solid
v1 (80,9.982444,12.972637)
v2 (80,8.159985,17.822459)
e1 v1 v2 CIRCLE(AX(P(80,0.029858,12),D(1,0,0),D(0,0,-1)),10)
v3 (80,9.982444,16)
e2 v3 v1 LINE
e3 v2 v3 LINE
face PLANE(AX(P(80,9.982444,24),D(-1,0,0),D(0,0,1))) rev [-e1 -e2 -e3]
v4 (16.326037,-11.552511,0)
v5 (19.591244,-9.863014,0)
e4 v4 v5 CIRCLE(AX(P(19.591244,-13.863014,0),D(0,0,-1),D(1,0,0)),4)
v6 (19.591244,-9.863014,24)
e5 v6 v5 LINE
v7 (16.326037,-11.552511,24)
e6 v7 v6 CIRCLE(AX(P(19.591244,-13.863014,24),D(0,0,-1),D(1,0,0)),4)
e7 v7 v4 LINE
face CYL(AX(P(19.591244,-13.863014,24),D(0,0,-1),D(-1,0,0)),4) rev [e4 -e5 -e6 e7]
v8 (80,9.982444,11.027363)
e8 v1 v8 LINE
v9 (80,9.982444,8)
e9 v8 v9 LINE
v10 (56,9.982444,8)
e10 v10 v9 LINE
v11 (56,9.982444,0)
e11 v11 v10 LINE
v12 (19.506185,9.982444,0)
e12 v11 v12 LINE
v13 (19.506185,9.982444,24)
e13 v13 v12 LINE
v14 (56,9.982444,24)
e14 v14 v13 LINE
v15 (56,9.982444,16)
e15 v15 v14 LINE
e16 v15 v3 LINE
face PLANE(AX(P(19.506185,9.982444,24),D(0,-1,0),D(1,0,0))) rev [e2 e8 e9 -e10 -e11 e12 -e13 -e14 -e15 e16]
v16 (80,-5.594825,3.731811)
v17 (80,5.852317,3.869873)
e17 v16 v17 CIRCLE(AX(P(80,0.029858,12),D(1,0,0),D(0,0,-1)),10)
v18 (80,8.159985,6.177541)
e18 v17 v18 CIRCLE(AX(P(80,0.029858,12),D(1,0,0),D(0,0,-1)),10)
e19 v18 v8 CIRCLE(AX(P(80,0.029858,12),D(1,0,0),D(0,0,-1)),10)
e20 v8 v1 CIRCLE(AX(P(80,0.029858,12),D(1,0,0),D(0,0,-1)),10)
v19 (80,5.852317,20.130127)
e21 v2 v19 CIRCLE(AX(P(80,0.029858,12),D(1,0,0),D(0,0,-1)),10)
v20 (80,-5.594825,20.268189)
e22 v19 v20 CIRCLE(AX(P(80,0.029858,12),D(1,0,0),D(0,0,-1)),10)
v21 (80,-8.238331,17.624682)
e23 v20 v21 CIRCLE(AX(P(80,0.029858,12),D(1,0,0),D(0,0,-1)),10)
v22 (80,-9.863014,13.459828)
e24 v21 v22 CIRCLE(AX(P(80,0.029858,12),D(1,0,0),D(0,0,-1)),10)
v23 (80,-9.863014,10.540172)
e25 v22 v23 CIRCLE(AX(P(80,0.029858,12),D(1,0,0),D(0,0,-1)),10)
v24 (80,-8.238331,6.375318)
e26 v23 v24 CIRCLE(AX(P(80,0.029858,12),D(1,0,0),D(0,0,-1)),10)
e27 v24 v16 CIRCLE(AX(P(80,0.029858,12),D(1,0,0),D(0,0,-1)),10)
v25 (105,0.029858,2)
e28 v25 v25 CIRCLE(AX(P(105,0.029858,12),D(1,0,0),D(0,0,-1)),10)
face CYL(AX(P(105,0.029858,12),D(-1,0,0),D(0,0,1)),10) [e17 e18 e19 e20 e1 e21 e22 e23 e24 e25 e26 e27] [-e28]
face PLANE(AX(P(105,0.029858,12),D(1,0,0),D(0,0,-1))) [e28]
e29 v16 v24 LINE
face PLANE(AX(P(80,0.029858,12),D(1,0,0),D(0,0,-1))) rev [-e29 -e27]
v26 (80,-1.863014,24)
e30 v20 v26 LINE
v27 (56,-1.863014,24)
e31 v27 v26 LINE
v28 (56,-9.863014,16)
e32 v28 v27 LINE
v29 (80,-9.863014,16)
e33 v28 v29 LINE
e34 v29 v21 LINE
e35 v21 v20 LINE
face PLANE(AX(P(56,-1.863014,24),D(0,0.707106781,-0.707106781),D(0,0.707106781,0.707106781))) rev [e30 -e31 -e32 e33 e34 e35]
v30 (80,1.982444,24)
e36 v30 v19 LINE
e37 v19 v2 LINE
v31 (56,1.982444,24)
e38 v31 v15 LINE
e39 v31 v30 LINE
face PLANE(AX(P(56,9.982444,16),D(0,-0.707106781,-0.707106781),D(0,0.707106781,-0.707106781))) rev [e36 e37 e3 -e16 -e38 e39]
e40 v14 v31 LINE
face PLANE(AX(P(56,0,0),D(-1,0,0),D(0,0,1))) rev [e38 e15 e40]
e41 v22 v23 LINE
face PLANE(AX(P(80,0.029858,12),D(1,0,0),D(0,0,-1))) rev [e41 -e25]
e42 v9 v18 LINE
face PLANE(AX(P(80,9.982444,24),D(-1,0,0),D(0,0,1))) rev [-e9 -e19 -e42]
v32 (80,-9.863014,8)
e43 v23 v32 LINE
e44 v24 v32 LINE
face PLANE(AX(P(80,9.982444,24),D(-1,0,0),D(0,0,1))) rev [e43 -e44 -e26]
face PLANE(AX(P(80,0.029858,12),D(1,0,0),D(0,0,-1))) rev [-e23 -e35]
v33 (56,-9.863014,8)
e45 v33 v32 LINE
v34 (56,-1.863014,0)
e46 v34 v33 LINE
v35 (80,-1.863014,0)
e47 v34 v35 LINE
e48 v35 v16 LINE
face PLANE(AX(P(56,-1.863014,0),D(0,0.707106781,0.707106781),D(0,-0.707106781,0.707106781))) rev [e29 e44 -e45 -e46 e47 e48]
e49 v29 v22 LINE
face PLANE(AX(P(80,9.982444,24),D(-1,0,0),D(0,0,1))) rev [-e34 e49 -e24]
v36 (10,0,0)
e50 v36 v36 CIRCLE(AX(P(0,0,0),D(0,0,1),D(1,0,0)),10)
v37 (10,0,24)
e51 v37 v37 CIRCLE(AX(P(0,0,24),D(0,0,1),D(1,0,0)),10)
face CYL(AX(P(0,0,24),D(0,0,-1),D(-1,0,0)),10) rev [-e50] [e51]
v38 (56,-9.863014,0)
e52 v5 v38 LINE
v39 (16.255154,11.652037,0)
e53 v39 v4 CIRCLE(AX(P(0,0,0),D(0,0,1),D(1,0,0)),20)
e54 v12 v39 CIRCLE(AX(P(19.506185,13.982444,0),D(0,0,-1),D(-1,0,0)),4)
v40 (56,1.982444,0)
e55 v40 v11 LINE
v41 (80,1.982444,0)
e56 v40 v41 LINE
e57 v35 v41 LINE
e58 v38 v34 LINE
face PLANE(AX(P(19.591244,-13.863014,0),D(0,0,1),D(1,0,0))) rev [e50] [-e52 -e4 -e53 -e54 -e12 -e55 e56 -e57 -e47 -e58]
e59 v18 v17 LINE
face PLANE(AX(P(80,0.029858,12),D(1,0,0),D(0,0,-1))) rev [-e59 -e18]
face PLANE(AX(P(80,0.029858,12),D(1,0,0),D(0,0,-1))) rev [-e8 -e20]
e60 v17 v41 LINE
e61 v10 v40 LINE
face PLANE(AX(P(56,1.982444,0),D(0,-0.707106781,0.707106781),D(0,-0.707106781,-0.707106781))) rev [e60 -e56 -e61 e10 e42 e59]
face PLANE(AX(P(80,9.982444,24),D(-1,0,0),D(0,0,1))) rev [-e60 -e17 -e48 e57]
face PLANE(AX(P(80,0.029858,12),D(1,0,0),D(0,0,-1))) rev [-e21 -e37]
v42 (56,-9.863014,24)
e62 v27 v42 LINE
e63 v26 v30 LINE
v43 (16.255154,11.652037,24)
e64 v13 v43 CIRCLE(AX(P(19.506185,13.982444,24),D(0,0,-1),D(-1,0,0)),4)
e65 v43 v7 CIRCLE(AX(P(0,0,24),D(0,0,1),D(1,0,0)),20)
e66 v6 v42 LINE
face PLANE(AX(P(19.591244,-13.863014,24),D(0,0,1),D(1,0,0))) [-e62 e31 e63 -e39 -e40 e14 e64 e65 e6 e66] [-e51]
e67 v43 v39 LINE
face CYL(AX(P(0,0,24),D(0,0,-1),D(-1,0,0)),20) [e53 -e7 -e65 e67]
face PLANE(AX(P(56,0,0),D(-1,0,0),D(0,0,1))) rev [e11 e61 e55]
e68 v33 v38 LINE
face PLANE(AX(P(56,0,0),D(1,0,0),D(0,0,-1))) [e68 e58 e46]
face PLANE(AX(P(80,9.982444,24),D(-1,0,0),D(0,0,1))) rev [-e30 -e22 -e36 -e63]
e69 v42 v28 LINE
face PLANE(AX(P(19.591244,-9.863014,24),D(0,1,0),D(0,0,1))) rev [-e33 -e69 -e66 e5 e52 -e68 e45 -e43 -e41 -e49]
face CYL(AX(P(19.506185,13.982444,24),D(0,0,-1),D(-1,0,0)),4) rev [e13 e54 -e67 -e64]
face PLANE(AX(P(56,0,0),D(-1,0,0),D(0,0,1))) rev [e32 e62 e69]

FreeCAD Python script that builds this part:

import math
import FreeCAD as App
import Part
import Sketcher
from FreeCAD import Vector
Q = App.Units.Quantity

doc = App.newDocument("Part")
params = doc.addObject("Spreadsheet::Sheet", "Params")
for row, (alias, value) in enumerate([
    ("sketch1_diameter", "20 mm"),
    ("sketch1_radius", "4 mm"),
    ("sketch1_radius2", "20 mm"),
    ("pad1_length", "24 mm"),
    ("sketch2_width", "8 mm"),
    ("pocket1_length", "24 mm"),
    ("sketch3_diameter", "20 mm"),
    ("pad2_length", "25 mm"),
], start=1):
    params.set(f"A{row}", alias)
    params.set(f"B{row}", "=" + value)
    params.setAlias(f"B{row}", alias)

body = doc.addObject("PartDesign::Body", "Body")

# Sketch on XY plane
sketch1 = doc.addObject("Sketcher::SketchObject", "Sketch")
body.addObject(sketch1)
sketch1.AttachmentSupport = (doc.XY_Plane, [""])
sketch1.MapMode = "FlatFace"
sketch1.addGeometry(Part.LineSegment(Vector(80, 10, 0), Vector(19.5, 10, 0)), False)
sketch1.addGeometry(Part.ArcOfCircle(Part.Circle(Vector(19.5, 14, 0), Vector(0, 0, 1), 4), math.radians(-144), math.radians(-90)), False)
sketch1.addGeometry(Part.ArcOfCircle(Part.Circle(Vector(0, 0, 0), Vector(0, 0, 1), 20), math.radians(36), math.radians(325)), False)
sketch1.addGeometry(Part.ArcOfCircle(Part.Circle(Vector(19.6, -13.9, 0), Vector(0, 0, 1), 4), math.radians(90), math.radians(145)), False)
sketch1.addGeometry(Part.LineSegment(Vector(19.6, -9.9, 0), Vector(80, -9.9, 0)), False)
sketch1.addGeometry(Part.LineSegment(Vector(80, -9.9, 0), Vector(80, 10, 0)), False)
sketch1.addGeometry(Part.Circle(Vector(0, 0, 0), Vector(0, 0, 1), 10), False)
sketch1.addConstraint(Sketcher.Constraint("Tangent", 0, 2, 1, 2))
sketch1.addConstraint(Sketcher.Constraint("Tangent", 1, 1, 2, 1))
sketch1.addConstraint(Sketcher.Constraint("Tangent", 2, 2, 3, 2))
sketch1.addConstraint(Sketcher.Constraint("Tangent", 3, 1, 4, 1))
sketch1.addConstraint(Sketcher.Constraint("Coincident", 4, 2, 5, 1))
sketch1.addConstraint(Sketcher.Constraint("Coincident", 5, 2, 0, 1))
sketch1.addConstraint(Sketcher.Constraint("Horizontal", 0))
sketch1.addConstraint(Sketcher.Constraint("Horizontal", 4))
sketch1.addConstraint(Sketcher.Constraint("Vertical", 5))
sketch1.addConstraint(Sketcher.Constraint("Coincident", 2, 3, -1, 1))
sketch1.addConstraint(Sketcher.Constraint("Coincident", 6, 3, -1, 1))
sketch1.addConstraint(Sketcher.Constraint("Equal", 1, 3))
sketch1.addConstraint(Sketcher.Constraint("Diameter", 6, Q("20 mm")))
sketch1.addConstraint(Sketcher.Constraint("Radius", 1, Q("4 mm")))
sketch1.addConstraint(Sketcher.Constraint("Radius", 2, Q("20 mm")))
sketch1.addConstraint(Sketcher.Constraint("DistanceX", -1, 1, 4, 2, Q("80 mm")))
sketch1.addConstraint(Sketcher.Constraint("DistanceX", 0, 2, 0, 1, Q("60.493815 mm")))
sketch1.addConstraint(Sketcher.Constraint("DistanceX", 4, 1, 4, 2, Q("60.408756 mm")))
sketch1.setExpression("Constraints[12]", "Params.sketch1_diameter")
sketch1.setExpression("Constraints[13]", "Params.sketch1_radius")
sketch1.setExpression("Constraints[14]", "Params.sketch1_radius2")
pad1 = doc.addObject("PartDesign::Pad", "Pad")
body.addObject(pad1)
pad1.Profile = sketch1
pad1.setExpression("Length", "Params.pad1_length")

# Sketch on YZ plane
sketch2 = doc.addObject("Sketcher::SketchObject", "Sketch001")
body.addObject(sketch2)
sketch2.AttachmentSupport = (doc.YZ_Plane, [""])
sketch2.MapMode = "FlatFace"
sketch2.AttachmentOffset = App.Placement(Vector(0, 0, 80), App.Rotation())
sketch2.addGeometry(Part.LineSegment(Vector(10, 0, 0), Vector(10, 8, 0)), False)
sketch2.addGeometry(Part.LineSegment(Vector(10, 8, 0), Vector(2, 0, 0)), False)
sketch2.addGeometry(Part.LineSegment(Vector(2, 0, 0), Vector(10, 0, 0)), False)
sketch2.addGeometry(Part.LineSegment(Vector(10, 16, 0), Vector(10, 24, 0)), False)
sketch2.addGeometry(Part.LineSegment(Vector(10, 24, 0), Vector(2, 24, 0)), False)
sketch2.addGeometry(Part.LineSegment(Vector(2, 24, 0), Vector(10, 16, 0)), False)
sketch2.addGeometry(Part.LineSegment(Vector(-2, 24, 0), Vector(-10, 24, 0)), False)
sketch2.addGeometry(Part.LineSegment(Vector(-10, 24, 0), Vector(-10, 16, 0)), False)
sketch2.addGeometry(Part.LineSegment(Vector(-10, 16, 0), Vector(-2, 24, 0)), False)
sketch2.addGeometry(Part.LineSegment(Vector(-10, 0, 0), Vector(-2, 0, 0)), False)
sketch2.addGeometry(Part.LineSegment(Vector(-2, 0, 0), Vector(-10, 8, 0)), False)
sketch2.addGeometry(Part.LineSegment(Vector(-10, 8, 0), Vector(-10, 0, 0)), False)
sketch2.addConstraint(Sketcher.Constraint("Coincident", 0, 2, 1, 1))
sketch2.addConstraint(Sketcher.Constraint("Coincident", 1, 2, 2, 1))
sketch2.addConstraint(Sketcher.Constraint("Coincident", 2, 2, 0, 1))
sketch2.addConstraint(Sketcher.Constraint("Coincident", 3, 2, 4, 1))
sketch2.addConstraint(Sketcher.Constraint("Coincident", 4, 2, 5, 1))
sketch2.addConstraint(Sketcher.Constraint("Coincident", 5, 2, 3, 1))
sketch2.addConstraint(Sketcher.Constraint("Coincident", 6, 2, 7, 1))
sketch2.addConstraint(Sketcher.Constraint("Coincident", 7, 2, 8, 1))
sketch2.addConstraint(Sketcher.Constraint("Coincident", 8, 2, 6, 1))
sketch2.addConstraint(Sketcher.Constraint("Coincident", 9, 2, 10, 1))
sketch2.addConstraint(Sketcher.Constraint("Coincident", 10, 2, 11, 1))
sketch2.addConstraint(Sketcher.Constraint("Coincident", 11, 2, 9, 1))
sketch2.addConstraint(Sketcher.Constraint("Vertical", 0))
sketch2.addConstraint(Sketcher.Constraint("Horizontal", 2))
sketch2.addConstraint(Sketcher.Constraint("Vertical", 3))
sketch2.addConstraint(Sketcher.Constraint("Horizontal", 4))
sketch2.addConstraint(Sketcher.Constraint("Horizontal", 6))
sketch2.addConstraint(Sketcher.Constraint("Vertical", 7))
sketch2.addConstraint(Sketcher.Constraint("Horizontal", 9))
sketch2.addConstraint(Sketcher.Constraint("Vertical", 11))
sketch2.addConstraint(Sketcher.Constraint("PointOnObject", 1, 2, -1))
sketch2.addConstraint(Sketcher.Constraint("PointOnObject", 9, 2, -1))
sketch2.addConstraint(Sketcher.Constraint("Perpendicular", 1, 5))
sketch2.addConstraint(Sketcher.Constraint("Perpendicular", 5, 8))
sketch2.addConstraint(Sketcher.Constraint("Perpendicular", 8, 10))
sketch2.addConstraint(Sketcher.Constraint("Horizontal", 4, 2, 6, 2))
sketch2.addConstraint(Sketcher.Constraint("Horizontal", 5, 2, 7, 2))
sketch2.addConstraint(Sketcher.Constraint("Horizontal", 0, 2, 10, 2))
sketch2.addConstraint(Sketcher.Constraint("Vertical", 2, 2, 3, 2))
sketch2.addConstraint(Sketcher.Constraint("Vertical", 1, 2, 4, 2))
sketch2.addConstraint(Sketcher.Constraint("Vertical", 8, 2, 9, 2))
sketch2.addConstraint(Sketcher.Constraint("Vertical", 7, 2, 10, 2))
sketch2.addConstraint(Sketcher.Constraint("DistanceX", 2, 1, 2, 2, Q("8 mm")))
sketch2.addConstraint(Sketcher.Constraint("DistanceY", -1, 1, 3, 2, Q("24 mm")))
sketch2.addConstraint(Sketcher.Constraint("DistanceX", -1, 1, 0, 2, Q("9.982444 mm")))
sketch2.addConstraint(Sketcher.Constraint("DistanceX", 6, 2, -1, 1, Q("9.863014 mm")))
sketch2.setExpression("Constraints[32]", "Params.sketch2_width")
pocket1 = doc.addObject("PartDesign::Pocket", "Pocket")
body.addObject(pocket1)
pocket1.Profile = sketch2
pocket1.setExpression("Length", "Params.pocket1_length")

# Sketch on YZ plane
sketch3 = doc.addObject("Sketcher::SketchObject", "Sketch002")
body.addObject(sketch3)
sketch3.AttachmentSupport = (doc.YZ_Plane, [""])
sketch3.MapMode = "FlatFace"
sketch3.AttachmentOffset = App.Placement(Vector(0, 0, 80), App.Rotation())
sketch3.addGeometry(Part.Circle(Vector(0, 12, 0), Vector(0, 0, 1), 10), False)
sketch3.addConstraint(Sketcher.Constraint("Diameter", 0, Q("20 mm")))
sketch3.addConstraint(Sketcher.Constraint("DistanceY", -1, 1, 0, 3, Q("12 mm")))
sketch3.addConstraint(Sketcher.Constraint("DistanceX", -1, 1, 0, 3, Q("0.029858 mm")))
sketch3.setExpression("Constraints[0]", "Params.sketch3_diameter")
pad2 = doc.addObject("PartDesign::Pad", "Pad001")
body.addObject(pad2)
pad2.Profile = sketch3
pad2.setExpression("Length", "Params.pad2_length")

doc.recompute()
